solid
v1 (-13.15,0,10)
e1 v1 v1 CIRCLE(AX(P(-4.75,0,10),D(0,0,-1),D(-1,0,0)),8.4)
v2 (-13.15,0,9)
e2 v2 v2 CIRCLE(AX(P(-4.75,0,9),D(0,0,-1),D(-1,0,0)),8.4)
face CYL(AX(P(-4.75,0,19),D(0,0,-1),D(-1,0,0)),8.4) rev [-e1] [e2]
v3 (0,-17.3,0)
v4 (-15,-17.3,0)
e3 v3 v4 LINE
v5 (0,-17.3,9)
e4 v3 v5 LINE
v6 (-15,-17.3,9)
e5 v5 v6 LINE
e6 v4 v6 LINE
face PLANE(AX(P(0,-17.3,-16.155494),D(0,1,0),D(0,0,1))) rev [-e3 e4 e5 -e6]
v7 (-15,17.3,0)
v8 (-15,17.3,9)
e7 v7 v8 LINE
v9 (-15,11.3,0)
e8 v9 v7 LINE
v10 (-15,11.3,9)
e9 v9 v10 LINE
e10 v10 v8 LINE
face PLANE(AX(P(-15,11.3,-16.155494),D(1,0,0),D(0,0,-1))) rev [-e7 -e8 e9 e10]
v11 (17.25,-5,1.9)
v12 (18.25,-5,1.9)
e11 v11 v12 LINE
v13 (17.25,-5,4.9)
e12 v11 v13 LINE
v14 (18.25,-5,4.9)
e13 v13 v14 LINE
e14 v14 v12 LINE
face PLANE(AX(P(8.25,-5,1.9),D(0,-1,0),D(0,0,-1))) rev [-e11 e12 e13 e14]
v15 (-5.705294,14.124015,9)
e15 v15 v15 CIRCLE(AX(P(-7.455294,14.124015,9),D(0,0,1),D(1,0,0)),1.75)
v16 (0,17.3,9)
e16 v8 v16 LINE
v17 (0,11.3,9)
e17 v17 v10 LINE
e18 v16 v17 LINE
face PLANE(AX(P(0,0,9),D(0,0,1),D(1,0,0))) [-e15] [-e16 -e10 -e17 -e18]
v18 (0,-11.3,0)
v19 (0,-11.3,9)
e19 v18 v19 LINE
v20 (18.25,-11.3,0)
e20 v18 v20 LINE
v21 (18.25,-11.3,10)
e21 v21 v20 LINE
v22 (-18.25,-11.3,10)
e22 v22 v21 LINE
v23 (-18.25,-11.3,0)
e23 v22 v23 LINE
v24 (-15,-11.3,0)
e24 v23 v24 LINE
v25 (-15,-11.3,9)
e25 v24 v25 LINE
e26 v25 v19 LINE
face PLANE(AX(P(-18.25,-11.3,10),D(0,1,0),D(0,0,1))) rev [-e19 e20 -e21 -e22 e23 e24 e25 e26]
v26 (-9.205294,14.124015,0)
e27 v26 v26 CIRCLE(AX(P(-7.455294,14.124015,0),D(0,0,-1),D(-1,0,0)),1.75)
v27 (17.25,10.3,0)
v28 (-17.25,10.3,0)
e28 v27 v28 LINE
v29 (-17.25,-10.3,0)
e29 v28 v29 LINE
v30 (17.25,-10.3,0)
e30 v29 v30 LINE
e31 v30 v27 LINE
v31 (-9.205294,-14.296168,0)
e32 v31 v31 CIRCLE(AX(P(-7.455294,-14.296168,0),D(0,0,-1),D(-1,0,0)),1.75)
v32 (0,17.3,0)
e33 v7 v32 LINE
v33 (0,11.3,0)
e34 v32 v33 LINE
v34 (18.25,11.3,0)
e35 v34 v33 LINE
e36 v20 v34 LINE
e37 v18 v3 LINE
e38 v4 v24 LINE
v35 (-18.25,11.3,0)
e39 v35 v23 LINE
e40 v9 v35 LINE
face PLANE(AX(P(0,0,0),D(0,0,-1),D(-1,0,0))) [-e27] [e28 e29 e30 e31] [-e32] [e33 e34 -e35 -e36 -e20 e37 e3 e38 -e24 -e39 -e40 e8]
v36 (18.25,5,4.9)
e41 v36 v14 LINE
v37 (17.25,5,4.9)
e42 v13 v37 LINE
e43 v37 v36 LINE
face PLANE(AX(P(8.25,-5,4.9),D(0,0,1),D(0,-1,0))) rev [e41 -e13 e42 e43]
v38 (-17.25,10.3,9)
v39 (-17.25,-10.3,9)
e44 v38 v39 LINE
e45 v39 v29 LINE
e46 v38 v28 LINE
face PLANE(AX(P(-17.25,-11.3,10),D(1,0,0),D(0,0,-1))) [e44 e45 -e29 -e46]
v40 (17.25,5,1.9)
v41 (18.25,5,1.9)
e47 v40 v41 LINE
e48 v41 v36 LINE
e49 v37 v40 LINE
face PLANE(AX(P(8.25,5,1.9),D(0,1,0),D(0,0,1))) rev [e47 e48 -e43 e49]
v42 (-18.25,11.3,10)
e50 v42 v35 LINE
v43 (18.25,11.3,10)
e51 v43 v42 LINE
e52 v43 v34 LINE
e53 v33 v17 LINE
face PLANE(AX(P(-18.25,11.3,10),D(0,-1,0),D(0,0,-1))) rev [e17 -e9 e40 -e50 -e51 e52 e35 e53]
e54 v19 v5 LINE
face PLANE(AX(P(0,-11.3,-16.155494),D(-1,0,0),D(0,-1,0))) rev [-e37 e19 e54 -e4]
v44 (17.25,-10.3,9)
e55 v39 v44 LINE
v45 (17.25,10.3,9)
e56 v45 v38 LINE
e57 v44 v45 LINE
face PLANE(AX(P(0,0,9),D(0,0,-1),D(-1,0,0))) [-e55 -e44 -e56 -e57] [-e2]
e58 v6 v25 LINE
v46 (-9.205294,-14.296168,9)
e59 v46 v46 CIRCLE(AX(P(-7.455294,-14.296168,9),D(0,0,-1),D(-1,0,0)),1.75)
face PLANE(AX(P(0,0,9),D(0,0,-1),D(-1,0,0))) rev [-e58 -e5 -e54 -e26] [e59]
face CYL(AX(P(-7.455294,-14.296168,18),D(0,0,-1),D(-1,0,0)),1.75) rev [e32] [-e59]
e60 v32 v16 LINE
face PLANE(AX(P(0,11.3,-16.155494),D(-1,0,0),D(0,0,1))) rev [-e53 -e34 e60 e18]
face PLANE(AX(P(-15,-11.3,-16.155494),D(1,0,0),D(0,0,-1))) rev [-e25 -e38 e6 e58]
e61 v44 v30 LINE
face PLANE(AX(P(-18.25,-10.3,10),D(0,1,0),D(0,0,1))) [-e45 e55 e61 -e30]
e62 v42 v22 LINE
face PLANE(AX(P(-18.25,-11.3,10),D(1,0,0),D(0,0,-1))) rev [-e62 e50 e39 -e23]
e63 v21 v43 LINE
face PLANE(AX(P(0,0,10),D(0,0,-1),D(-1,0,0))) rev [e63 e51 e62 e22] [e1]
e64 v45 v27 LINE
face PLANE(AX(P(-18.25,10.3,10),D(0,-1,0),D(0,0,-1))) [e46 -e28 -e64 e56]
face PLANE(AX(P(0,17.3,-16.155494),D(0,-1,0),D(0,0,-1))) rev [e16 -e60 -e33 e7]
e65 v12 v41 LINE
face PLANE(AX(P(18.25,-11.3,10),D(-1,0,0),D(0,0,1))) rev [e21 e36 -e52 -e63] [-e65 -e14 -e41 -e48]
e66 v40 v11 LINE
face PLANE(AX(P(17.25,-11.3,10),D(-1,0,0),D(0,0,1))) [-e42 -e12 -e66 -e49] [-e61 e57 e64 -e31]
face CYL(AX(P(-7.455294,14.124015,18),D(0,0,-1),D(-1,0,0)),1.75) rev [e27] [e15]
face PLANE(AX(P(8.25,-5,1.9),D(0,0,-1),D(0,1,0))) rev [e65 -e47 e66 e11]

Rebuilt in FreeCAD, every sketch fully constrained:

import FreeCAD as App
import Part
import Sketcher


def faces_at(feature, points):
    """Names of the faces that lie closest to the given points."""
    faces = feature.Shape.Faces
    near = lambda p: min(range(len(faces)), key=lambda i: faces[i].distToShape(Part.Vertex(*p))[0])
    return sorted({f"Face{near(p) + 1}" for p in points})


def add_polygon(sketch, points):
    """Adds a closed chain of lines whose ends are joined by coincident constraints."""
    first, n = sketch.GeometryCount, len(points)
    for a, b in zip(points, points[1:] + points[:1]):
        sketch.addGeometry(Part.LineSegment(App.Vector(*a, 0), App.Vector(*b, 0)), False)
    for i in range(n):
        sketch.addConstraint(Sketcher.Constraint("Coincident", first + i, 2, first + (i + 1) % n, 1))

doc = App.newDocument("Part")
params = doc.addObject("Spreadsheet::Sheet", "Params")
for row, (alias, value) in enumerate([
    ("sketch1_width", "36.5 mm"),
    ("sketch1_height", "22.6 mm"),
    ("pad1_length", "10 mm"),
    ("thickness_wall", "1 mm"),
    ("sketch2_diameter", "16.8 mm"),
    ("pocket1_length", "10 mm"),
    ("sketch3_width", "10 mm"),
    ("sketch3_height", "3 mm"),
    ("pocket2_length", "10 mm"),
    ("sketch4_width", "15 mm"),
    ("sketch4_height", "6 mm"),
    ("pad2_length", "9 mm"),
    ("sketch5_diameter", "3.5 mm"),
    ("pocket3_length", "18 mm"),
], start=1):
    params.set(f"A{row}", alias)
    params.set(f"B{row}", "=" + value)
    params.setAlias(f"B{row}", alias)

body = doc.addObject("PartDesign::Body", "Body")

sketch1 = doc.addObject("Sketcher::SketchObject", "Sketch")
body.addObject(sketch1)
sketch1.AttachmentSupport = (doc.XY_Plane, [""])
sketch1.MapMode = "FlatFace"
add_polygon(sketch1, [(-18.25, 11.3), (-18.25, -11.3), (18.25, -11.3), (18.25, 11.3)])
sketch1.addConstraint([
    Sketcher.Constraint("Vertical", 0),
    Sketcher.Constraint("Horizontal", 1),
    Sketcher.Constraint("Vertical", 2),
    Sketcher.Constraint("Horizontal", 3),
    Sketcher.Constraint("Symmetric", 0, 2, 2, 2, -1, 1),
    Sketcher.Constraint("DistanceX", 1, 1, 1, 2, 36.5),
    Sketcher.Constraint("DistanceY", 0, 2, 0, 1, 22.6),
])
sketch1.setExpression("Constraints[9]", "Params.sketch1_width")
sketch1.setExpression("Constraints[10]", "Params.sketch1_height")
pad1 = doc.addObject("PartDesign::Pad", "Pad")
body.addObject(pad1)
pad1.Profile = sketch1
pad1.setExpression("Length", "Params.pad1_length")
doc.recompute()

thickness = doc.addObject("PartDesign::Thickness", "Thickness")
body.addObject(thickness)
thickness.Base = (pad1, faces_at(pad1, [(0, 0, 0)]))
thickness.setExpression("Value", "Params.thickness_wall")
thickness.Reversed = True
thickness.Join = "Intersection"

sketch2 = doc.addObject("Sketcher::SketchObject", "Sketch001")
body.addObject(sketch2)
sketch2.AttachmentSupport = (doc.XY_Plane, [""])
sketch2.MapMode = "FlatFace"
sketch2.AttachmentOffset = App.Placement(App.Vector(0, 0, 9), App.Rotation())
sketch2.addGeometry(Part.Circle(App.Vector(-4.75, 0, 0), App.Vector(0, 0, 1), 8.4), False)
sketch2.addConstraint([
    Sketcher.Constraint("PointOnObject", 0, 3, -1),
    Sketcher.Constraint("Diameter", 0, 16.8),
    Sketcher.Constraint("DistanceX", 0, 3, -1, 1, 4.75),
])
sketch2.setExpression("Constraints[1]", "Params.sketch2_diameter")
pocket1 = doc.addObject("PartDesign::Pocket", "Pocket")
body.addObject(pocket1)
pocket1.Profile = sketch2
pocket1.setExpression("Length", "Params.pocket1_length")
pocket1.Reversed = True

sketch3 = doc.addObject("Sketcher::SketchObject", "Sketch002")
body.addObject(sketch3)
sketch3.AttachmentSupport = (doc.YZ_Plane, [""])
sketch3.MapMode = "FlatFace"
sketch3.AttachmentOffset = App.Placement(App.Vector(0, 0, 18.25), App.Rotation())
add_polygon(sketch3, [(5, 4.9), (-5, 4.9), (-5, 1.9), (5, 1.9)])
sketch3.addConstraint([
    Sketcher.Constraint("Horizontal", 0),
    Sketcher.Constraint("Vertical", 1),
    Sketcher.Constraint("Horizontal", 2),
    Sketcher.Constraint("Vertical", 3),
    Sketcher.Constraint("DistanceX", 0, 2, 0, 1, 10.0),
    Sketcher.Constraint("DistanceY", 1, 2, 1, 1, 3.0),
    Sketcher.Constraint("DistanceX", 0, 2, -1, 1, 5.0),
    Sketcher.Constraint("DistanceY", -1, 1, 0, 2, 4.9),
])
sketch3.setExpression("Constraints[8]", "Params.sketch3_width")
sketch3.setExpression("Constraints[9]", "Params.sketch3_height")
pocket2 = doc.addObject("PartDesign::Pocket", "Pocket001")
body.addObject(pocket2)
pocket2.Profile = sketch3
pocket2.setExpression("Length", "Params.pocket2_length")

sketch4 = doc.addObject("Sketcher::SketchObject", "Sketch003")
body.addObject(sketch4)
sketch4.AttachmentSupport = (doc.XY_Plane, [""])
sketch4.MapMode = "FlatFace"
sketch4.AttachmentOffset = App.Placement(App.Vector(0, 0, 9), App.Rotation())
add_polygon(sketch4, [(0, 17.3), (0, 11.3), (-15, 11.3), (-15, 17.3)])
add_polygon(sketch4, [(0, -11.3), (0, -17.3), (-15, -17.3), (-15, -11.3)])
sketch4.addConstraint([
    Sketcher.Constraint("Vertical", 0),
    Sketcher.Constraint("Horizontal", 1),
    Sketcher.Constraint("Vertical", 2),
    Sketcher.Constraint("Horizontal", 3),
    Sketcher.Constraint("Vertical", 4),
    Sketcher.Constraint("Horizontal", 5),
    Sketcher.Constraint("Vertical", 6),
    Sketcher.Constraint("Horizontal", 7),
    Sketcher.Constraint("Symmetric", 3, 2, 4, 2, -1, 1),
    Sketcher.Constraint("Symmetric", 1, 2, 6, 2, -1),
    Sketcher.Constraint("PointOnObject", 0, 2, -2),
    Sketcher.Constraint("DistanceX", 1, 2, 1, 1, 15.0),
    Sketcher.Constraint("DistanceY", 0, 2, 0, 1, 6.0),
    Sketcher.Constraint("DistanceY", -1, 1, 0, 2, 11.3),
])
sketch4.setExpression("Constraints[19]", "Params.sketch4_width")
sketch4.setExpression("Constraints[20]", "Params.sketch4_height")
pad2 = doc.addObject("PartDesign::Pad", "Pad001")
body.addObject(pad2)
pad2.Profile = sketch4
pad2.setExpression("Length", "Params.pad2_length")
pad2.Reversed = True

sketch5 = doc.addObject("Sketcher::SketchObject", "Sketch004")
body.addObject(sketch5)
sketch5.AttachmentSupport = (doc.XY_Plane, [""])
sketch5.MapMode = "FlatFace"
sketch5.addGeometry([
    Part.Circle(App.Vector(-7.455294, 14.124015, 0), App.Vector(0, 0, 1), 1.75),
    Part.Circle(App.Vector(-7.455294, -14.296168, 0), App.Vector(0, 0, 1), 1.75),
], False)
sketch5.addConstraint([
    Sketcher.Constraint("Equal", 0, 1),
    Sketcher.Constraint("Vertical", 0, 3, 1, 3),
    Sketcher.Constraint("Diameter", 0, 3.5),
    Sketcher.Constraint("DistanceX", 0, 3, -1, 1, 7.455294),
    Sketcher.Constraint("DistanceY", -1, 1, 0, 3, 14.124015),
    Sketcher.Constraint("DistanceY", 1, 3, -1, 1, 14.296168),
])
sketch5.setExpression("Constraints[2]", "Params.sketch5_diameter")
pocket3 = doc.addObject("PartDesign::Pocket", "Pocket002")
body.addObject(pocket3)
pocket3.Profile = sketch5
pocket3.setExpression("Length", "Params.pocket3_length")
pocket3.Reversed = True

doc.recompute()
